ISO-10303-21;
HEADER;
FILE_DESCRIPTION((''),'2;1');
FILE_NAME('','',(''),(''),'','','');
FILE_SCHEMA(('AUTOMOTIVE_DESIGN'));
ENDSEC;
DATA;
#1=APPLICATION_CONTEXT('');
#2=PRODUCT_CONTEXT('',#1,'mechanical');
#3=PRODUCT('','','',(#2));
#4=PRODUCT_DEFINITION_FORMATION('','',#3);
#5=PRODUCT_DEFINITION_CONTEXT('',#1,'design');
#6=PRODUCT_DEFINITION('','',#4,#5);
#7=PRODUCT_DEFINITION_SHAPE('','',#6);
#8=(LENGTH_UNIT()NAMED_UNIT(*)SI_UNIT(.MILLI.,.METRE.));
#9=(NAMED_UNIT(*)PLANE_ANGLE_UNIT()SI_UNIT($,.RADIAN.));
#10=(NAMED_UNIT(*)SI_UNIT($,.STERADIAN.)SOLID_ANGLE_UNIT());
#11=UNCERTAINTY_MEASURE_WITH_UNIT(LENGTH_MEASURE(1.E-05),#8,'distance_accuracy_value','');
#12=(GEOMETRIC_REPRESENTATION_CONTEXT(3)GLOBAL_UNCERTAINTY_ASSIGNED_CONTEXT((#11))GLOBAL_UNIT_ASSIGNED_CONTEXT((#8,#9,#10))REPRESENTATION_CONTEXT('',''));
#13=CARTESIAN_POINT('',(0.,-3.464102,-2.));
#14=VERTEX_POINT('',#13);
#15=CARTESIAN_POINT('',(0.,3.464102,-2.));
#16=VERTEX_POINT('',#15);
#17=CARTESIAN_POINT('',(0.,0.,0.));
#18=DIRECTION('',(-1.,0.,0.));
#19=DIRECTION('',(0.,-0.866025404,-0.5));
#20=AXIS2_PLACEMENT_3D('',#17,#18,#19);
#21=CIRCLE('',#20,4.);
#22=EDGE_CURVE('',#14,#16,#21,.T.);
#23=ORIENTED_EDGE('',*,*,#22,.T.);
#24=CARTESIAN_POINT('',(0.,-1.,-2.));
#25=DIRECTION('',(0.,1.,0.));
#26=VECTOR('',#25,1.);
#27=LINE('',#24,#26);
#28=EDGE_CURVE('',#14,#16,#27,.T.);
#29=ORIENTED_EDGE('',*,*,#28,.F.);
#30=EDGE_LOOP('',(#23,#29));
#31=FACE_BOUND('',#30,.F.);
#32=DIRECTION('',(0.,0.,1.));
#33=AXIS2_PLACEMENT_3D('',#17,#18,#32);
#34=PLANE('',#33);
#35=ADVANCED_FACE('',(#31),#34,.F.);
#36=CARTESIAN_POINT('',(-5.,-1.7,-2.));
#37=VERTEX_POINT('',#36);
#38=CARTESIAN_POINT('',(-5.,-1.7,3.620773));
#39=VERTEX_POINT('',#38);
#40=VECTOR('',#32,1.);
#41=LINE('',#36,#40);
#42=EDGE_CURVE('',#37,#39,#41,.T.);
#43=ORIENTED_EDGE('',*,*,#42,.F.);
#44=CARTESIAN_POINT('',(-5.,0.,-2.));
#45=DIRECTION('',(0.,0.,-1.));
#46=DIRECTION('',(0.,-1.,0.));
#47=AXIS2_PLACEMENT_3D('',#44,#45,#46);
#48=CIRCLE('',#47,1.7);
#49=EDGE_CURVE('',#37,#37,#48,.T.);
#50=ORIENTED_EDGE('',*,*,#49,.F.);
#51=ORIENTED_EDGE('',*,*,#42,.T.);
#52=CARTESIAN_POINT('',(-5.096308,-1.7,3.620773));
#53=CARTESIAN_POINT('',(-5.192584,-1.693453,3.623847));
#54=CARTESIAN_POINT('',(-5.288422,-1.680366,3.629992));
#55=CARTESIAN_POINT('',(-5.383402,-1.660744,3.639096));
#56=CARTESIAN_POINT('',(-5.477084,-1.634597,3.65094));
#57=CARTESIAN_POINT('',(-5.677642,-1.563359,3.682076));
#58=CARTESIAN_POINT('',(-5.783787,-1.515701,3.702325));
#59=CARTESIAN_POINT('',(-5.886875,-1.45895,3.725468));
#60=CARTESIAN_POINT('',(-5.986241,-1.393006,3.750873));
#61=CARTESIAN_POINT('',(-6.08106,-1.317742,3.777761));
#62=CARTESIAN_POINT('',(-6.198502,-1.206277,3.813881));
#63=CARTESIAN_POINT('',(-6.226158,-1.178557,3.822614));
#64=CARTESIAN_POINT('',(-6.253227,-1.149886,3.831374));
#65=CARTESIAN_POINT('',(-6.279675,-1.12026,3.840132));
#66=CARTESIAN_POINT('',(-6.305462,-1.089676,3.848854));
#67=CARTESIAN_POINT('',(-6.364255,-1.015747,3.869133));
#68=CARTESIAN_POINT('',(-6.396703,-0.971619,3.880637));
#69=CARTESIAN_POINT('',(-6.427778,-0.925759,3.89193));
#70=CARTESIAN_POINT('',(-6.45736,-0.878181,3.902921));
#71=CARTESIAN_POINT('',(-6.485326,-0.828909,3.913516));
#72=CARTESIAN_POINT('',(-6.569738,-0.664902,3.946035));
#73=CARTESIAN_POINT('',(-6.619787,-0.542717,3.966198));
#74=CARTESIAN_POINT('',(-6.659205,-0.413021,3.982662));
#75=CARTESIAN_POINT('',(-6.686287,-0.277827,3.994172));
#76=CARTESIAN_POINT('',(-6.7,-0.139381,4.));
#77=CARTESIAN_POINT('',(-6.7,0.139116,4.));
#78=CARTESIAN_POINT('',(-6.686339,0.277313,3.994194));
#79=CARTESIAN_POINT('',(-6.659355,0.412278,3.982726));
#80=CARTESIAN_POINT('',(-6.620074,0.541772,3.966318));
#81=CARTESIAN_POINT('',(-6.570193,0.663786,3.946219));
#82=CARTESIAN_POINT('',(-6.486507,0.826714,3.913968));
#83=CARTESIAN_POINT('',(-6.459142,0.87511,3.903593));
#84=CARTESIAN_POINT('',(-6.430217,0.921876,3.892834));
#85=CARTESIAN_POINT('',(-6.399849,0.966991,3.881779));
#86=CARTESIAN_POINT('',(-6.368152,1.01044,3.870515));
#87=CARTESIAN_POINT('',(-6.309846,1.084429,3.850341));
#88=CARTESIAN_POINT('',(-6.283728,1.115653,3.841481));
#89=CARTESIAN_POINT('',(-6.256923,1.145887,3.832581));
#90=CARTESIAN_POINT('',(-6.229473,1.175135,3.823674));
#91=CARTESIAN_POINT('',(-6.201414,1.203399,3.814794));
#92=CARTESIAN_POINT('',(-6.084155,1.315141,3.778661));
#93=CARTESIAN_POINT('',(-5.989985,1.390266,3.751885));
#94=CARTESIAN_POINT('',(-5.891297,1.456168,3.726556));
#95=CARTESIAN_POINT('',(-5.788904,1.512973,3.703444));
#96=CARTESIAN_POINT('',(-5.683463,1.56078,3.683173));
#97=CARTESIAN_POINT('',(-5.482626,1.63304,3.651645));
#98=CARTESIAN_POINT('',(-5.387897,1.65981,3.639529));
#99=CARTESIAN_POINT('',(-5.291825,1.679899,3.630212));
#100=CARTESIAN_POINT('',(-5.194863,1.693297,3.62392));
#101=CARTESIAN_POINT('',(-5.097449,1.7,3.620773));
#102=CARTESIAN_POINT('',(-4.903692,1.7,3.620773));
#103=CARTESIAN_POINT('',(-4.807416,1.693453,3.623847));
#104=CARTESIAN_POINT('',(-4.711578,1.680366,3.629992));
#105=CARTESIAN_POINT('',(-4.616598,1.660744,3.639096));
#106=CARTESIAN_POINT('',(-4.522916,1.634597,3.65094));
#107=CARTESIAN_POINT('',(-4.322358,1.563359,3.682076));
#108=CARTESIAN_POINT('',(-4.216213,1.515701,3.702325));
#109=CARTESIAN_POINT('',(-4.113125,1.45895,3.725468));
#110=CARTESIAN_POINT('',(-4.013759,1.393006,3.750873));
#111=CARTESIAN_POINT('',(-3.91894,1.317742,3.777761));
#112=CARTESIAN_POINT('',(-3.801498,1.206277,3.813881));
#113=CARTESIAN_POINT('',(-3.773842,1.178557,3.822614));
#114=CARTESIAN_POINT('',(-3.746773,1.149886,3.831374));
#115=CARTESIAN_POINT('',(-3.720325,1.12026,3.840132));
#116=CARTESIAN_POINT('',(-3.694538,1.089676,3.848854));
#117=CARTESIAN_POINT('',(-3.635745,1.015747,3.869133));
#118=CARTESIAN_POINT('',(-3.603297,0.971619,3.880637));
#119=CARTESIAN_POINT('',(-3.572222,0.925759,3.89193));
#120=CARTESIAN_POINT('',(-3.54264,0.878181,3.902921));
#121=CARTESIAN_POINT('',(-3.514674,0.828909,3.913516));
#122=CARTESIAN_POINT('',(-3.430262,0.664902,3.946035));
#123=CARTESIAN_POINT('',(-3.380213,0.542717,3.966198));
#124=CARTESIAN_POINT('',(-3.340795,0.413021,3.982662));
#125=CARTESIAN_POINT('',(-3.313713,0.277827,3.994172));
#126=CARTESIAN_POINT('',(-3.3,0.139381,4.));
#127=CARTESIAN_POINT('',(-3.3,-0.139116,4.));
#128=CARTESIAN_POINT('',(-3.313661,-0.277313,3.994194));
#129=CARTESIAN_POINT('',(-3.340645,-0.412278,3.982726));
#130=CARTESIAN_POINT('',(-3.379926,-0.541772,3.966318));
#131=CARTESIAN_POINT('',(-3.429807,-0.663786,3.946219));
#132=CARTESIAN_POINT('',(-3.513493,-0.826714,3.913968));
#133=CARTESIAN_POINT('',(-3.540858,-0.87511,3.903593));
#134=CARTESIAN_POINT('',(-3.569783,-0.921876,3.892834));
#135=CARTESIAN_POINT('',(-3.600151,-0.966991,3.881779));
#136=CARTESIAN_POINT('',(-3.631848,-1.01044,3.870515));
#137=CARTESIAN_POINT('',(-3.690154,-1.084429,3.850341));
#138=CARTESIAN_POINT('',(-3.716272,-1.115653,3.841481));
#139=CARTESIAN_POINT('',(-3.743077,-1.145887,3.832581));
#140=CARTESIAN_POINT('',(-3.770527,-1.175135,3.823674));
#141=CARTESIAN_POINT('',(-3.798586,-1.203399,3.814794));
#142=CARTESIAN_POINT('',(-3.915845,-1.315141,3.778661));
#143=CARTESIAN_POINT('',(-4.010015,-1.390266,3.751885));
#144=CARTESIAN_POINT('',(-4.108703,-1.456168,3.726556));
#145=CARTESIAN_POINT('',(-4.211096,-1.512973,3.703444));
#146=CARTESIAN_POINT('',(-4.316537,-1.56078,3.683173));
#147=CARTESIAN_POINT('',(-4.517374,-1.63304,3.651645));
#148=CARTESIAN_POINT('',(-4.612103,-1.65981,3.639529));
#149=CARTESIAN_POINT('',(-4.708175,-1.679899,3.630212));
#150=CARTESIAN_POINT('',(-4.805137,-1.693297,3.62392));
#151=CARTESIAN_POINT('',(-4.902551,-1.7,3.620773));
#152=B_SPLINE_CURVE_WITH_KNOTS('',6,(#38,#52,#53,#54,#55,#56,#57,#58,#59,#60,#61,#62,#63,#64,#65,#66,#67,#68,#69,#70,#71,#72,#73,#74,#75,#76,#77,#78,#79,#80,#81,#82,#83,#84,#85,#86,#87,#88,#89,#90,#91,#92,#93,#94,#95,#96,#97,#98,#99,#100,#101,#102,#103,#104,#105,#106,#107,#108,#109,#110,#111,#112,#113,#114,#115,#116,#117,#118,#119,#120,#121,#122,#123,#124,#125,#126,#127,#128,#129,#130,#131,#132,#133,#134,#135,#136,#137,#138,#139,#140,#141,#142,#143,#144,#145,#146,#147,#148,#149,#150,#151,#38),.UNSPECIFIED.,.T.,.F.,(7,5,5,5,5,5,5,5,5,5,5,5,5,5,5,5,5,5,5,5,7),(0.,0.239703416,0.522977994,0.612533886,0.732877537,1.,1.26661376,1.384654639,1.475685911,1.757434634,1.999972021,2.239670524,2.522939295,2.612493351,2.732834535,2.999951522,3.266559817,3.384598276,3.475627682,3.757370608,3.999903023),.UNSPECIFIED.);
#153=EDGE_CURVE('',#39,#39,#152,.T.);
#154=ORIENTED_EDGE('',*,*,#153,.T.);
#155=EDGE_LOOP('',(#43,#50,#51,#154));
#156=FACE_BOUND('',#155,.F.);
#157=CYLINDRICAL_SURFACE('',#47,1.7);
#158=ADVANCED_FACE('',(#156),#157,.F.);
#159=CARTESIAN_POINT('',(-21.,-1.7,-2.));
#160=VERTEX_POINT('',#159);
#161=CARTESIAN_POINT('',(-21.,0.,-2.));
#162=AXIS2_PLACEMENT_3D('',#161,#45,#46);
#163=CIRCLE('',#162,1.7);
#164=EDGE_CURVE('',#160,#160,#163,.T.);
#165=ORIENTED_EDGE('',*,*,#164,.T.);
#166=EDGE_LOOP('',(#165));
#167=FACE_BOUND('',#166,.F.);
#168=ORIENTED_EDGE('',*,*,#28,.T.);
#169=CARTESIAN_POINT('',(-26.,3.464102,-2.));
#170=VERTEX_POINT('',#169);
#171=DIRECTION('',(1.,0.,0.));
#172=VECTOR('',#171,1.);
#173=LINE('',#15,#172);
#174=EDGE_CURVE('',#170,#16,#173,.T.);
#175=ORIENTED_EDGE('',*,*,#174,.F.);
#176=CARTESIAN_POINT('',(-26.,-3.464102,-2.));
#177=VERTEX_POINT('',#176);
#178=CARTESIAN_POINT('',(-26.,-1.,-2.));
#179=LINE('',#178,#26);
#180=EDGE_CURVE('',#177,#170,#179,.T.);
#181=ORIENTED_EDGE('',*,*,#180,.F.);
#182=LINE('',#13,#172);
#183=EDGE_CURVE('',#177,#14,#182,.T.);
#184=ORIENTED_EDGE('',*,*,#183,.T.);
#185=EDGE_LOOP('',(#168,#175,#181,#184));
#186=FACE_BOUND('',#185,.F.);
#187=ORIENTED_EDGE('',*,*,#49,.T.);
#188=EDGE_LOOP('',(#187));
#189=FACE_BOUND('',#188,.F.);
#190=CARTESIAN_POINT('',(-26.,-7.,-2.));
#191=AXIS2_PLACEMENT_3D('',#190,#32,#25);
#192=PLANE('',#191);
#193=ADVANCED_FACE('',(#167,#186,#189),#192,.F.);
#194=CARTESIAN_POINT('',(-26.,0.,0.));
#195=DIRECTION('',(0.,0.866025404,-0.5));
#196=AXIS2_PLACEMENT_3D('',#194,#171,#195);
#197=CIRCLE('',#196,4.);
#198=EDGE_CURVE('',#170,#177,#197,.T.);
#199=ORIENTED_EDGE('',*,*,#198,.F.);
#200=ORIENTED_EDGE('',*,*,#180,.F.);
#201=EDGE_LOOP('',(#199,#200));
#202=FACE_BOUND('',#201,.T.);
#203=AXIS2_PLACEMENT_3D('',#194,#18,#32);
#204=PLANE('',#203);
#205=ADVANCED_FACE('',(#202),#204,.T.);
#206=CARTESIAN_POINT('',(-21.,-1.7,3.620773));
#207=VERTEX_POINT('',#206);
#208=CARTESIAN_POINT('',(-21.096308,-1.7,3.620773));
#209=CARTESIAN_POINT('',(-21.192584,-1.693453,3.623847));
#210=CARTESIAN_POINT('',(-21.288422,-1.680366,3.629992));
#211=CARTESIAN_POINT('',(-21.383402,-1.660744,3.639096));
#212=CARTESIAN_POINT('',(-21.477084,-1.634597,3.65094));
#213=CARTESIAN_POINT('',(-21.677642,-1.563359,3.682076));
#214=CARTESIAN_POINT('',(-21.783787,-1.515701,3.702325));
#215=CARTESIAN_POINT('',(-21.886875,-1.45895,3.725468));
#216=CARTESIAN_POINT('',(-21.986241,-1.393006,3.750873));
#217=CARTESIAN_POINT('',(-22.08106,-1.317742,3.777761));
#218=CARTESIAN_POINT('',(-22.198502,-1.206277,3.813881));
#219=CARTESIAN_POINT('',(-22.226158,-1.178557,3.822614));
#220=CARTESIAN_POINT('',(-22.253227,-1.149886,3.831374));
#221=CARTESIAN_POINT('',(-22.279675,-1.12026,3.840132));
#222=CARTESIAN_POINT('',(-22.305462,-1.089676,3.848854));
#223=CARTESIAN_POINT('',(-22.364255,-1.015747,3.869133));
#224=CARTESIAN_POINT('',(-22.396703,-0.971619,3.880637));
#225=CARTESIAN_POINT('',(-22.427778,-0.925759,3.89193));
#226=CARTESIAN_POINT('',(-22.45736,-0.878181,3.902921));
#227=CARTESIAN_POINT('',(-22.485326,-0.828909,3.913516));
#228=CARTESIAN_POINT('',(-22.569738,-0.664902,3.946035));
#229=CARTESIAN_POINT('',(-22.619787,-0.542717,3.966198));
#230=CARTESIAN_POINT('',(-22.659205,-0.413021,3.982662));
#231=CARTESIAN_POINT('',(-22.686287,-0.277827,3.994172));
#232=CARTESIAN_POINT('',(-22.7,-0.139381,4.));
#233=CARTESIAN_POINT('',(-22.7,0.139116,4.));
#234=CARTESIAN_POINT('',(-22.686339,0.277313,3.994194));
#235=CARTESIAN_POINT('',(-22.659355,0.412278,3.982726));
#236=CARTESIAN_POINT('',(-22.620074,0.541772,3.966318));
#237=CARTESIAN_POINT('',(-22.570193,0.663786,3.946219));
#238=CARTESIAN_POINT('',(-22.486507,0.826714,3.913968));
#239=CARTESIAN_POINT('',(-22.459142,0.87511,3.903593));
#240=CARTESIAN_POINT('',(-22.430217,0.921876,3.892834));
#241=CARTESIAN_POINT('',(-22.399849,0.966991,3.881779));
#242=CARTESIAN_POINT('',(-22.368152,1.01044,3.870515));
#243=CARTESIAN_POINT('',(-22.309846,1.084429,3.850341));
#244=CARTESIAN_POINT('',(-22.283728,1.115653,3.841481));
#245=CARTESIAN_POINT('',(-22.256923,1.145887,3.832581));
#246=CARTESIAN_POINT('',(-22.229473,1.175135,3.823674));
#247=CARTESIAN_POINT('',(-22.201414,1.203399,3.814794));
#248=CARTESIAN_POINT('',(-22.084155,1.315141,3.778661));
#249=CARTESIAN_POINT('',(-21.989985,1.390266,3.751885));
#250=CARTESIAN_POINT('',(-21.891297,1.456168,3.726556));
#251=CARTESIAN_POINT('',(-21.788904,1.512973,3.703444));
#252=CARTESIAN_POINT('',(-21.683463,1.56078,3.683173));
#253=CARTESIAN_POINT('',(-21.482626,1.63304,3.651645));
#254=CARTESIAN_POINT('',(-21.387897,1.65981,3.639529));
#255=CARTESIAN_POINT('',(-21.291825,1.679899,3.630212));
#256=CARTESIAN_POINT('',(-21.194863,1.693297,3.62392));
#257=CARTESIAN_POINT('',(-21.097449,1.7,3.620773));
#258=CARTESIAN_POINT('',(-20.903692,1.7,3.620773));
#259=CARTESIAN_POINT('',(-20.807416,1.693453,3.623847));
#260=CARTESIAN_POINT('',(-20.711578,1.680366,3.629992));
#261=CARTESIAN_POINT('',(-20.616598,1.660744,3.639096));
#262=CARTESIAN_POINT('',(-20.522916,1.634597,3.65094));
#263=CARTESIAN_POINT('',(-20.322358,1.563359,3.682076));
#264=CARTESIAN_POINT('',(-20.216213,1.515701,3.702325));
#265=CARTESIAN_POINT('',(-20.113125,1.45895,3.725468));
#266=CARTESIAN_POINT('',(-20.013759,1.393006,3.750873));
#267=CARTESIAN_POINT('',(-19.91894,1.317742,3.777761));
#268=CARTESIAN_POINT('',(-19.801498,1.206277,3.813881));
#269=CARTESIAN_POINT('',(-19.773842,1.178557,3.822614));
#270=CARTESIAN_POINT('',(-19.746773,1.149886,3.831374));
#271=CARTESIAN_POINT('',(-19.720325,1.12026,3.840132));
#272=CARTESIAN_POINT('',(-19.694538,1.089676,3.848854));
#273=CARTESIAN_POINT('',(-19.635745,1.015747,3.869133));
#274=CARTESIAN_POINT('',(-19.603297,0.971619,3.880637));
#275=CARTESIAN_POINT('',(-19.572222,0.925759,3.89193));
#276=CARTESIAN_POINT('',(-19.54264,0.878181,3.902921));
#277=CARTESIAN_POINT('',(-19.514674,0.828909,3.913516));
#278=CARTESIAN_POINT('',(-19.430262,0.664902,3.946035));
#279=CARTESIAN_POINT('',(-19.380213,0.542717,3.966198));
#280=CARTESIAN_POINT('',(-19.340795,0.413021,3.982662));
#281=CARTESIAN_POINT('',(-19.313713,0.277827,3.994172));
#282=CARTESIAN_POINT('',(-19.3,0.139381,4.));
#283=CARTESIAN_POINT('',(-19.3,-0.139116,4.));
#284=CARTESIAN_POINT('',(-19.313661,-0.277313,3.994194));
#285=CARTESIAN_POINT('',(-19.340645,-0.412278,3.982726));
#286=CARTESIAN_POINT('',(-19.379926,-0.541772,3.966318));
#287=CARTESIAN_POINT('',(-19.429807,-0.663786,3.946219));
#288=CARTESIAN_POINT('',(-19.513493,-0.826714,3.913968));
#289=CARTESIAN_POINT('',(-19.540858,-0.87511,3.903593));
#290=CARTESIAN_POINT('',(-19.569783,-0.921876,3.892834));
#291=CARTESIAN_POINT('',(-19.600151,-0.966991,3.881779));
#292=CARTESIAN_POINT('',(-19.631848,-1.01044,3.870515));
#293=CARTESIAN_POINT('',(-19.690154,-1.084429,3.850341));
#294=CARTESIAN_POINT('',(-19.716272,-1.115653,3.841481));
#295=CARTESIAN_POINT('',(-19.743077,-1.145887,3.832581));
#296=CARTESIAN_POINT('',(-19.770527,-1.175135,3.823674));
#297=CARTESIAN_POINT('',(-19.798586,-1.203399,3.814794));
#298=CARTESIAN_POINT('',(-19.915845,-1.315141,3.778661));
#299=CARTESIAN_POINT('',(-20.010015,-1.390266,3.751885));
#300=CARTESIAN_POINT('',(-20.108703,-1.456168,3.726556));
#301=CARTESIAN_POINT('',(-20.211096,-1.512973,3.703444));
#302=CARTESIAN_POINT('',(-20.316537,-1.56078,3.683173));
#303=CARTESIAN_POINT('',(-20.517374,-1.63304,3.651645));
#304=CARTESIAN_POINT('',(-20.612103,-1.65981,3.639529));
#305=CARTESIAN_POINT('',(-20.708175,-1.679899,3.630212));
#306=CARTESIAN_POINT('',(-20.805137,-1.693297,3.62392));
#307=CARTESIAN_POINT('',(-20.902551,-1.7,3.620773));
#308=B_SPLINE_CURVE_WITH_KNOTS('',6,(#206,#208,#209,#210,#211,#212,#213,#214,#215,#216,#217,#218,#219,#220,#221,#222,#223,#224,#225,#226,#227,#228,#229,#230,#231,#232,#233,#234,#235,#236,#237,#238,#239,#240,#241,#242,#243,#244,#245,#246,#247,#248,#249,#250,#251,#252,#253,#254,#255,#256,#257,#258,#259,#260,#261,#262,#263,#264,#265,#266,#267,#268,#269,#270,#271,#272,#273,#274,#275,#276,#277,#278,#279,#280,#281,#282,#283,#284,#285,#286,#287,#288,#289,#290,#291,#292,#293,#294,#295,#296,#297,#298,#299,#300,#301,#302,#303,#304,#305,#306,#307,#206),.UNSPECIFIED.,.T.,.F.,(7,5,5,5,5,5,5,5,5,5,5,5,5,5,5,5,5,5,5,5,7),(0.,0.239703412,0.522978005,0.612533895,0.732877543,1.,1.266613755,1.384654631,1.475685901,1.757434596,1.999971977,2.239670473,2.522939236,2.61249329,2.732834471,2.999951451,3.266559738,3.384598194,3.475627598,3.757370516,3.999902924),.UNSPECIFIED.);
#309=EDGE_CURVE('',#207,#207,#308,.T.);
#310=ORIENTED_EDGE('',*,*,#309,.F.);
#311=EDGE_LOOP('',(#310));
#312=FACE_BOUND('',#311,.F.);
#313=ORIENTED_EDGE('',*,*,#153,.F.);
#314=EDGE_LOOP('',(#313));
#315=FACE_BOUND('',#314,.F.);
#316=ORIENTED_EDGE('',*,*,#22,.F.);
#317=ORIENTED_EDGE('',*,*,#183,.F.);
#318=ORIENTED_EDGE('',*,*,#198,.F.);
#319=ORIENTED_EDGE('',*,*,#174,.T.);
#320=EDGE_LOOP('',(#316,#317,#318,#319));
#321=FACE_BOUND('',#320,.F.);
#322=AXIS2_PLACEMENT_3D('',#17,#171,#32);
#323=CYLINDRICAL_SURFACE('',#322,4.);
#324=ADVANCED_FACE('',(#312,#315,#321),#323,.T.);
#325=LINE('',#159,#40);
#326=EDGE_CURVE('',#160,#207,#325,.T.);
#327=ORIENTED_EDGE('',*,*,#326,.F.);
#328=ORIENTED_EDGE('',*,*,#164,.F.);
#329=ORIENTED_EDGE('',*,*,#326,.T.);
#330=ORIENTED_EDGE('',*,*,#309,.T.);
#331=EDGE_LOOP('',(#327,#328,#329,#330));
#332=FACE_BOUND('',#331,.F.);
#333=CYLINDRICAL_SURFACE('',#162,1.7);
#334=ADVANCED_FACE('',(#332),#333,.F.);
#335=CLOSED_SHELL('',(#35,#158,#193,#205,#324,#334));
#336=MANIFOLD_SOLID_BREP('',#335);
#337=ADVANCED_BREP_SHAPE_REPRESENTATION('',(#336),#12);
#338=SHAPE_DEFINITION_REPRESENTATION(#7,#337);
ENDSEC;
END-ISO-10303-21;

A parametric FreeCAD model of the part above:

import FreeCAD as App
import Part
import Sketcher
Q = App.Units.Quantity

doc = App.newDocument("Part")
body = doc.addObject("PartDesign::Body", "Body")

# Sketch on YZ plane
sketch1 = doc.addObject("Sketcher::SketchObject", "Sketch")
body.addObject(sketch1)
sketch1.AttachmentSupport = (doc.YZ_Plane, [""])
sketch1.MapMode = "FlatFace"
sketch1.addGeometry(Part.Circle(App.Vector(0, 0, 0), App.Vector(0, 0, 1), 4), False)
sketch1.addConstraint([
    Sketcher.Constraint("Coincident", 0, 3, -1, 1),
    Sketcher.Constraint("Diameter", 0, Q("8 mm")),
])
pad1 = doc.addObject("PartDesign::Pad", "Pad")
body.addObject(pad1)
pad1.Profile = sketch1
pad1.Length = 26
pad1.Reversed = True

# Sketch on YZ plane
sketch2 = doc.addObject("Sketcher::SketchObject", "Sketch001")
body.addObject(sketch2)
sketch2.AttachmentSupport = (doc.YZ_Plane, [""])
sketch2.MapMode = "FlatFace"
sketch2.AttachmentOffset = App.Placement(App.Vector(0, 0, -26), App.Rotation())
sketch2.addGeometry([
    Part.LineSegment(App.Vector(5, -6, 0), App.Vector(-7, -6, 0)),
    Part.LineSegment(App.Vector(-7, -6, 0), App.Vector(-7, -2, 0)),
    Part.LineSegment(App.Vector(-7, -2, 0), App.Vector(5, -2, 0)),
    Part.LineSegment(App.Vector(5, -2, 0), App.Vector(5, -6, 0)),
], False)
sketch2.addConstraint([
    Sketcher.Constraint("Coincident", 0, 2, 1, 1),
    Sketcher.Constraint("Coincident", 1, 2, 2, 1),
    Sketcher.Constraint("Coincident", 2, 2, 3, 1),
    Sketcher.Constraint("Coincident", 3, 2, 0, 1),
    Sketcher.Constraint("Horizontal", 0),
    Sketcher.Constraint("Vertical", 1),
    Sketcher.Constraint("Horizontal", 2),
    Sketcher.Constraint("Vertical", 3),
    Sketcher.Constraint("DistanceX", 0, 2, 0, 1, Q("12 mm")),
    Sketcher.Constraint("DistanceY", 1, 1, 1, 2, Q("4 mm")),
    Sketcher.Constraint("DistanceX", 0, 2, -1, 1, Q("7 mm")),
    Sketcher.Constraint("DistanceY", 0, 2, -1, 1, Q("6 mm")),
])
pocket1 = doc.addObject("PartDesign::Pocket", "Pocket")
body.addObject(pocket1)
pocket1.Profile = sketch2
pocket1.Length = 26
pocket1.Reversed = True

# Sketch on XY plane
sketch3 = doc.addObject("Sketcher::SketchObject", "Sketch002")
body.addObject(sketch3)
sketch3.AttachmentSupport = (doc.XY_Plane, [""])
sketch3.MapMode = "FlatFace"
sketch3.AttachmentOffset = App.Placement(App.Vector(0, 0, -2), App.Rotation())
sketch3.addGeometry([
    Part.Circle(App.Vector(-21, 0, 0), App.Vector(0, 0, 1), 1.7),
    Part.Circle(App.Vector(-5, 0, 0), App.Vector(0, 0, 1), 1.7),
], False)
sketch3.addConstraint([
    Sketcher.Constraint("Equal", 0, 1),
    Sketcher.Constraint("PointOnObject", 0, 3, -1),
    Sketcher.Constraint("PointOnObject", 1, 3, -1),
    Sketcher.Constraint("Diameter", 0, Q("3.4 mm")),
    Sketcher.Constraint("DistanceX", 0, 3, -1, 1, Q("21 mm")),
    Sketcher.Constraint("DistanceX", 1, 3, -1, 1, Q("5 mm")),
])
pocket2 = doc.addObject("PartDesign::Pocket", "Pocket001")
body.addObject(pocket2)
pocket2.Profile = sketch3
pocket2.Length = 7
pocket2.Reversed = True

doc.recompute()
